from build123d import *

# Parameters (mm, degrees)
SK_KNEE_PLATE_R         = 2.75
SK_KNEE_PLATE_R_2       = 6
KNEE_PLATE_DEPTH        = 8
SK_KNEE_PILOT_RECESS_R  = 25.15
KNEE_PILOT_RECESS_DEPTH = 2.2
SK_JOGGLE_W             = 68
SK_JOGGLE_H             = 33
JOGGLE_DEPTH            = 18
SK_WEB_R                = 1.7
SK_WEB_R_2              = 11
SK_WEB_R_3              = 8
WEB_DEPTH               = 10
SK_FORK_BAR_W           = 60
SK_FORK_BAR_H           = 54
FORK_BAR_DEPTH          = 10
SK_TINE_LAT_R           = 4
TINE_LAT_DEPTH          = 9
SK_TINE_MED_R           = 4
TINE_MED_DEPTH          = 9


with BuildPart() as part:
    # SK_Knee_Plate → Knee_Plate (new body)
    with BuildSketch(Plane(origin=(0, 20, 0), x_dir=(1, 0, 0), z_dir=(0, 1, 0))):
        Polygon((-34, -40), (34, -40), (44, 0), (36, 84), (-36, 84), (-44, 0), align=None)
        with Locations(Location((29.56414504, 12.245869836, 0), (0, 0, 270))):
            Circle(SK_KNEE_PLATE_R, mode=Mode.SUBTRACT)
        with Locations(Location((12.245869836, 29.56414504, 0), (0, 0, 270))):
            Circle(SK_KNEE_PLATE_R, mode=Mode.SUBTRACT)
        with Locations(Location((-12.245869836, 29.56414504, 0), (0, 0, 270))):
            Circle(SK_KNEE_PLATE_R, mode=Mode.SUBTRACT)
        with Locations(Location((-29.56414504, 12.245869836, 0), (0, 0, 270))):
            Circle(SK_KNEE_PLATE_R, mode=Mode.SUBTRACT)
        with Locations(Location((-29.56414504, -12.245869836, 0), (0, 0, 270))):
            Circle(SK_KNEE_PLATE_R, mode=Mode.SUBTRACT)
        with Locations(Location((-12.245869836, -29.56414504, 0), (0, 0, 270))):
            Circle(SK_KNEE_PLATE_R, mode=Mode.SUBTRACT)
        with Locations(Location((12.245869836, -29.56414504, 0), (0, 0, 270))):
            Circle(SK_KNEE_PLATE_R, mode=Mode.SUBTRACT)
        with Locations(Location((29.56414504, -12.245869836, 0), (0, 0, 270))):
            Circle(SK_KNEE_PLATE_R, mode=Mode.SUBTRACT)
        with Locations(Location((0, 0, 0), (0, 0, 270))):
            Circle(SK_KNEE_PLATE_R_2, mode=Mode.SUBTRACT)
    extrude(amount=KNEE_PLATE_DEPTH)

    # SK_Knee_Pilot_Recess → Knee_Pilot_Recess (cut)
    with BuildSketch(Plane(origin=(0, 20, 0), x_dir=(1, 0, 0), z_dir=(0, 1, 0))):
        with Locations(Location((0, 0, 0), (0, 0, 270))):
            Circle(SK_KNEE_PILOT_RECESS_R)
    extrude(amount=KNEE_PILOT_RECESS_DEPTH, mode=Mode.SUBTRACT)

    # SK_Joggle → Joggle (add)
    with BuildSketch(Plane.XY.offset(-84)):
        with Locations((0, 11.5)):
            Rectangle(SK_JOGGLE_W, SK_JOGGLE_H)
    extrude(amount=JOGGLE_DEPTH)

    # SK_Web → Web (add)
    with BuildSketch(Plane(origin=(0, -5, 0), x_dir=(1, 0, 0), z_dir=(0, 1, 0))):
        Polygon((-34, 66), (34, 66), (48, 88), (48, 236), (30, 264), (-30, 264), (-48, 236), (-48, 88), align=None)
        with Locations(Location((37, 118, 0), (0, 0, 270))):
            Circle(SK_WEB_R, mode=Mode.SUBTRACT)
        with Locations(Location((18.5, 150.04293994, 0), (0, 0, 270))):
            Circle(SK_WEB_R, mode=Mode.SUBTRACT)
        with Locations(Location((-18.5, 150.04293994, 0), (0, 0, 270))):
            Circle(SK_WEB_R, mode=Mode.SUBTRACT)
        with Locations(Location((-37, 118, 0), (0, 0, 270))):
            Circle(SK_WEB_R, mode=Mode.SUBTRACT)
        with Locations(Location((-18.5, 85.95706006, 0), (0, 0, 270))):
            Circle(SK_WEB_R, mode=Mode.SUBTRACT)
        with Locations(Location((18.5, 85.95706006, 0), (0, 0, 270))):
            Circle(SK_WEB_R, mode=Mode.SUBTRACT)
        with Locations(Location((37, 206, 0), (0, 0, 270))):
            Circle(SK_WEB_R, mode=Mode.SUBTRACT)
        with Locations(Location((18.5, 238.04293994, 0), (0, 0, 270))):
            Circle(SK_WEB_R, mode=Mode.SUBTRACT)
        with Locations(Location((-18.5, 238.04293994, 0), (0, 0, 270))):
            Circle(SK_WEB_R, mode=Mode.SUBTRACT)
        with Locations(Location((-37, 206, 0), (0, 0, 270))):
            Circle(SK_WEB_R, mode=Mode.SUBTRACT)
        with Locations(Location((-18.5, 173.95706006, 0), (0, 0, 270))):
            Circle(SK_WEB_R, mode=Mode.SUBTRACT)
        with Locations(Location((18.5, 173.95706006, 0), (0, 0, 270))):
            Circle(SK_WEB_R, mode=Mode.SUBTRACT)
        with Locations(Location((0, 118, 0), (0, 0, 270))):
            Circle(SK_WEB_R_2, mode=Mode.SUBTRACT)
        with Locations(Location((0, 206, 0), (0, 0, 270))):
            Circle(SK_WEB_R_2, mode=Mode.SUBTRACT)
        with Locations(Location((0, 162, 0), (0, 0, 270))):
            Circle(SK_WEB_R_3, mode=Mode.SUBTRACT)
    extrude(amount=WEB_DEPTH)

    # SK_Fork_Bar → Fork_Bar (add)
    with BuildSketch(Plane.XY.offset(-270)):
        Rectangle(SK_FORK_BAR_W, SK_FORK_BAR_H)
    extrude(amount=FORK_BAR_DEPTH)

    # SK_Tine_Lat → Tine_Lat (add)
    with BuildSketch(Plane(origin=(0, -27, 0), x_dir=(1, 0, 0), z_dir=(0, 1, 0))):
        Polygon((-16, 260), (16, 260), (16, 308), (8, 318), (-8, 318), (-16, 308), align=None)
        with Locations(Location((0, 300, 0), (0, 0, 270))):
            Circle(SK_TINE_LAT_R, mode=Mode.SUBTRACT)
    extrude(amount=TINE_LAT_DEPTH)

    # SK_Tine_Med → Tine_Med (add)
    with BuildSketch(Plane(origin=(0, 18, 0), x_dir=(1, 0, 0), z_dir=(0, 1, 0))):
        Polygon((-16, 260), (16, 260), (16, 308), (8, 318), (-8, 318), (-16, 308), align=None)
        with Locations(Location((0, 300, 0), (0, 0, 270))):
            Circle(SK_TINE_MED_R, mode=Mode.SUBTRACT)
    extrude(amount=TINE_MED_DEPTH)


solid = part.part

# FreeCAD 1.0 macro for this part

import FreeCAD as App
import Part
import Sketcher

doc = App.newDocument("Part")
body = doc.addObject("PartDesign::Body", "Body")

# Sketch on XZ plane
sketch1 = body.newObject("Sketcher::SketchObject", "Sketch")
sketch1.AttachmentSupport = (doc.getObject("XZ_Plane"), [""])
sketch1.MapMode = "FlatFace"
sketch1.AttachmentOffset = App.Placement(App.Vector(0, 0, -20), App.Rotation())
sketch1.addGeometry([
    Part.LineSegment(App.Vector(-34, 40, 0), App.Vector(34, 40, 0)),  # 0
    Part.LineSegment(App.Vector(34, 40, 0), App.Vector(44, 0, 0)),  # 1
    Part.LineSegment(App.Vector(44, 0, 0), App.Vector(36, -84, 0)),  # 2
    Part.LineSegment(App.Vector(36, -84, 0), App.Vector(-36, -84, 0)),  # 3
    Part.LineSegment(App.Vector(-36, -84, 0), App.Vector(-44, 0, 0)),  # 4
    Part.LineSegment(App.Vector(-44, 0, 0), App.Vector(-34, 40, 0)),  # 5
    Part.Circle(App.Vector(-12.24587, 29.564145, 0), App.Vector(0, 0, 1), 2.75),  # 6
    Part.Circle(App.Vector(-29.564145, 12.24587, 0), App.Vector(0, 0, 1), 2.75),  # 7
    Part.Circle(App.Vector(12.24587, 29.564145, 0), App.Vector(0, 0, 1), 2.75),  # 8
    Part.Circle(App.Vector(29.564145, 12.24587, 0), App.Vector(0, 0, 1), 2.75),  # 9
    Part.Circle(App.Vector(-29.564145, -12.24587, 0), App.Vector(0, 0, 1), 2.75),  # 10
    Part.Circle(App.Vector(-12.24587, -29.564145, 0), App.Vector(0, 0, 1), 2.75),  # 11
    Part.Circle(App.Vector(0, 0, 0), App.Vector(0, 0, 1), 6),  # 12
    Part.Circle(App.Vector(29.564145, -12.24587, 0), App.Vector(0, 0, 1), 2.75),  # 13
    Part.Circle(App.Vector(12.24587, -29.564145, 0), App.Vector(0, 0, 1), 2.75),  # 14
], False)
sketch1.addConstraint([
    Sketcher.Constraint("Coincident", 0, 2, 1, 1),
    Sketcher.Constraint("Coincident", 1, 2, 2, 1),
    Sketcher.Constraint("Coincident", 2, 2, 3, 1),
    Sketcher.Constraint("Coincident", 3, 2, 4, 1),
    Sketcher.Constraint("Coincident", 4, 2, 5, 1),
    Sketcher.Constraint("Coincident", 5, 2, 0, 1),
    Sketcher.Constraint("Horizontal", 0),
    Sketcher.Constraint("Horizontal", 3),
    Sketcher.Constraint("Coincident", 12, 3, -1, 1),
    Sketcher.Constraint("Equal", 6, 7),
    Sketcher.Constraint("Equal", 7, 8),
    Sketcher.Constraint("Equal", 8, 9),
    Sketcher.Constraint("Equal", 9, 10),
    Sketcher.Constraint("Equal", 10, 11),
    Sketcher.Constraint("Equal", 11, 13),
    Sketcher.Constraint("Equal", 13, 14),
    Sketcher.Constraint("Symmetric", 9, 3, 10, 3, -1, 1),
    Sketcher.Constraint("Symmetric", 8, 3, 11, 3, -1, 1),
    Sketcher.Constraint("Symmetric", 7, 3, 13, 3, -1, 1),
    Sketcher.Constraint("Symmetric", 6, 3, 14, 3, -1, 1),
    Sketcher.Constraint("Symmetric", 1, 2, 4, 2, -1, 1),
    Sketcher.Constraint("Symmetric", 6, 3, 8, 3, -2),
    Sketcher.Constraint("Symmetric", 7, 3, 9, 3, -2),
    Sketcher.Constraint("PointOnObject", 1, 2, -1),
    Sketcher.Constraint("Equal", 2, 4),
    Sketcher.Constraint("Equal", 1, 5),
    Sketcher.Constraint("Diameter", 12, 12.0),
    Sketcher.Constraint("Diameter", 6, 5.5),
    Sketcher.Constraint("DistanceX", 0, 1, 0, 2, 68.0),
    Sketcher.Constraint("DistanceX", 3, 2, 3, 1, 72.0),
    Sketcher.Constraint("DistanceY", -1, 1, 0, 2, 40.0),
    Sketcher.Constraint("DistanceX", -1, 1, 1, 2, 44.0),
    Sketcher.Constraint("DistanceY", 2, 2, -1, 1, 84.0),
    Sketcher.Constraint("DistanceX", 6, 3, -1, 1, 12.24587),
    Sketcher.Constraint("DistanceY", -1, 1, 7, 3, 12.24587),
    Sketcher.Constraint("DistanceX", 7, 3, 9, 3, 59.12829),
    Sketcher.Constraint("DistanceY", 11, 3, 6, 3, 59.12829),
])
pad1 = body.newObject("PartDesign::Pad", "Pad")
pad1.Profile = sketch1
pad1.Length = 8
pad1.Reversed = True

# Sketch on XZ plane
sketch2 = body.newObject("Sketcher::SketchObject", "Sketch001")
sketch2.AttachmentSupport = (doc.getObject("XZ_Plane"), [""])
sketch2.MapMode = "FlatFace"
sketch2.AttachmentOffset = App.Placement(App.Vector(0, 0, -20), App.Rotation())
sketch2.addGeometry(Part.Circle(App.Vector(0, 0, 0), App.Vector(0, 0, 1), 25.15), False)
sketch2.addConstraint([
    Sketcher.Constraint("Coincident", 0, 3, -1, 1),
    Sketcher.Constraint("Diameter", 0, 50.3),
])
pocket1 = body.newObject("PartDesign::Pocket", "Pocket")
pocket1.Profile = sketch2
pocket1.Length = 2.2

# Sketch on XY plane
sketch3 = body.newObject("Sketcher::SketchObject", "Sketch002")
sketch3.AttachmentSupport = (doc.getObject("XY_Plane"), [""])
sketch3.MapMode = "FlatFace"
sketch3.AttachmentOffset = App.Placement(App.Vector(0, 0, -84), App.Rotation())
sketch3.addGeometry([
    Part.LineSegment(App.Vector(-34, 28, 0), App.Vector(-34, -5, 0)),
    Part.LineSegment(App.Vector(-34, -5, 0), App.Vector(34, -5, 0)),
    Part.LineSegment(App.Vector(34, -5, 0), App.Vector(34, 28, 0)),
    Part.LineSegment(App.Vector(34, 28, 0), App.Vector(-34, 28, 0)),
], False)
sketch3.addConstraint([
    Sketcher.Constraint("Coincident", 0, 2, 1, 1),
    Sketcher.Constraint("Coincident", 1, 2, 2, 1),
    Sketcher.Constraint("Coincident", 2, 2, 3, 1),
    Sketcher.Constraint("Coincident", 3, 2, 0, 1),
    Sketcher.Constraint("Vertical", 0),
    Sketcher.Constraint("Horizontal", 1),
    Sketcher.Constraint("Vertical", 2),
    Sketcher.Constraint("Horizontal", 3),
    Sketcher.Constraint("DistanceX", 1, 1, 1, 2, 68.0),
    Sketcher.Constraint("DistanceY", 0, 2, 0, 1, 33.0),
    Sketcher.Constraint("DistanceX", 0, 2, -1, 1, 34.0),
    Sketcher.Constraint("DistanceY", 0, 2, -1, 1, 5.0),
])
pad2 = body.newObject("PartDesign::Pad", "Pad001")
pad2.Profile = sketch3
pad2.Length = 18

# Sketch on XZ plane
sketch4 = body.newObject("Sketcher::SketchObject", "Sketch003")
sketch4.AttachmentSupport = (doc.getObject("XZ_Plane"), [""])
sketch4.MapMode = "FlatFace"
sketch4.AttachmentOffset = App.Placement(App.Vector(0, 0, 5), App.Rotation())
sketch4.addGeometry([
    Part.LineSegment(App.Vector(-34, -66, 0), App.Vector(34, -66, 0)),  # 0
    Part.LineSegment(App.Vector(34, -66, 0), App.Vector(48, -88, 0)),  # 1
    Part.LineSegment(App.Vector(48, -88, 0), App.Vector(48, -236, 0)),  # 2
    Part.LineSegment(App.Vector(48, -236, 0), App.Vector(30, -264, 0)),  # 3
    Part.LineSegment(App.Vector(30, -264, 0), App.Vector(-30, -264, 0)),  # 4
    Part.LineSegment(App.Vector(-30, -264, 0), App.Vector(-48, -236, 0)),  # 5
    Part.LineSegment(App.Vector(-48, -236, 0), App.Vector(-48, -88, 0)),  # 6
    Part.LineSegment(App.Vector(-48, -88, 0), App.Vector(-34, -66, 0)),  # 7
    Part.Circle(App.Vector(-37, -118, 0), App.Vector(0, 0, 1), 1.7),  # 8
    Part.Circle(App.Vector(-18.5, -85.95706, 0), App.Vector(0, 0, 1), 1.7),  # 9
    Part.Circle(App.Vector(-18.5, -150.04294, 0), App.Vector(0, 0, 1), 1.7),  # 10
    Part.Circle(App.Vector(18.5, -85.95706, 0), App.Vector(0, 0, 1), 1.7),  # 11
    Part.Circle(App.Vector(0, -118, 0), App.Vector(0, 0, 1), 11),  # 12
    Part.Circle(App.Vector(37, -118, 0), App.Vector(0, 0, 1), 1.7),  # 13
    Part.Circle(App.Vector(18.5, -150.04294, 0), App.Vector(0, 0, 1), 1.7),  # 14
    Part.Circle(App.Vector(-18.5, -173.95706, 0), App.Vector(0, 0, 1), 1.7),  # 15
    Part.Circle(App.Vector(-37, -206, 0), App.Vector(0, 0, 1), 1.7),  # 16
    Part.Circle(App.Vector(-18.5, -238.04294, 0), App.Vector(0, 0, 1), 1.7),  # 17
    Part.Circle(App.Vector(0, -162, 0), App.Vector(0, 0, 1), 8),  # 18
    Part.Circle(App.Vector(18.5, -173.95706, 0), App.Vector(0, 0, 1), 1.7),  # 19
    Part.Circle(App.Vector(0, -206, 0), App.Vector(0, 0, 1), 11),  # 20
    Part.Circle(App.Vector(18.5, -238.04294, 0), App.Vector(0, 0, 1), 1.7),  # 21
    Part.Circle(App.Vector(37, -206, 0), App.Vector(0, 0, 1), 1.7),  # 22
], False)
sketch4.addConstraint([
    Sketcher.Constraint("Coincident", 0, 2, 1, 1),
    Sketcher.Constraint("Coincident", 1, 2, 2, 1),
    Sketcher.Constraint("Coincident", 2, 2, 3, 1),
    Sketcher.Constraint("Coincident", 3, 2, 4, 1),
    Sketcher.Constraint("Coincident", 4, 2, 5, 1),
    Sketcher.Constraint("Coincident", 5, 2, 6, 1),
    Sketcher.Constraint("Coincident", 6, 2, 7, 1),
    Sketcher.Constraint("Coincident", 7, 2, 0, 1),
    Sketcher.Constraint("Horizontal", 0),
    Sketcher.Constraint("Vertical", 2),
    Sketcher.Constraint("Horizontal", 4),
    Sketcher.Constraint("Vertical", 6),
    Sketcher.Constraint("Equal", 8, 9),
    Sketcher.Constraint("Equal", 9, 10),
    Sketcher.Constraint("Equal", 10, 11),
    Sketcher.Constraint("Equal", 11, 13),
    Sketcher.Constraint("Equal", 13, 14),
    Sketcher.Constraint("Equal", 14, 15),
    Sketcher.Constraint("Equal", 15, 16),
    Sketcher.Constraint("Equal", 16, 17),
    Sketcher.Constraint("Equal", 17, 19),
    Sketcher.Constraint("Equal", 12, 20),
    Sketcher.Constraint("Equal", 19, 21),
    Sketcher.Constraint("Equal", 21, 22),
    Sketcher.Constraint("Symmetric", 9, 3, 11, 3, -2),
    Sketcher.Constraint("Symmetric", 8, 3, 13, 3, -2),
    Sketcher.Constraint("Symmetric", 10, 3, 14, 3, -2),
    Sketcher.Constraint("Symmetric", 15, 3, 19, 3, -2),
    Sketcher.Constraint("Symmetric", 17, 3, 21, 3, -2),
    Sketcher.Constraint("Symmetric", 16, 3, 22, 3, -2),
    Sketcher.Constraint("Symmetric", 2, 2, 5, 2, -2),
    Sketcher.Constraint("PointOnObject", 12, 3, -2),
    Sketcher.Constraint("PointOnObject", 18, 3, -2),
    Sketcher.Constraint("PointOnObject", 20, 3, -2),
    Sketcher.Constraint("Horizontal", 8, 3, 12, 3),
    Sketcher.Constraint("Horizontal", 16, 3, 20, 3),
    Sketcher.Constraint("Horizontal", 1, 2, 6, 2),
    Sketcher.Constraint("Vertical", 9, 3, 10, 3),
    Sketcher.Constraint("Vertical", 10, 3, 15, 3),
    Sketcher.Constraint("Vertical", 8, 3, 16, 3),
    Sketcher.Constraint("Vertical", 15, 3, 17, 3),
    Sketcher.Constraint("Equal", 3, 5),
    Sketcher.Constraint("Equal", 1, 7),
    Sketcher.Constraint("Diameter", 12, 22.0),
    Sketcher.Constraint("Diameter", 18, 16.0),
    Sketcher.Constraint("Diameter", 8, 3.4),
    Sketcher.Constraint("DistanceX", 0, 1, 0, 2, 68.0),
    Sketcher.Constraint("DistanceX", 4, 2, 4, 1, 60.0),
    Sketcher.Constraint("DistanceY", 2, 2, 2, 1, 148.0),
    Sketcher.Constraint("DistanceX", 8, 3, -1, 1, 37.0),
    Sketcher.Constraint("DistanceY", 8, 3, -1, 1, 118.0),
    Sketcher.Constraint("DistanceY", 16, 3, -1, 1, 206.0),
    Sketcher.Constraint("DistanceY", 18, 3, -1, 1, 162.0),
    Sketcher.Constraint("DistanceY", 0, 2, -1, 1, 66.0),
    Sketcher.Constraint("DistanceX", -1, 1, 1, 2, 48.0),
    Sketcher.Constraint("DistanceY", 1, 2, -1, 1, 88.0),
    Sketcher.Constraint("DistanceY", 3, 2, -1, 1, 264.0),
    Sketcher.Constraint("DistanceX", 9, 3, 11, 3, 37.0),
    Sketcher.Constraint("DistanceY", 17, 3, 10, 3, 88.0),
    Sketcher.Constraint("DistanceY", 9, 3, -1, 1, 85.95706),
    Sketcher.Constraint("DistanceY", 10, 3, -1, 1, 150.04294),
    Sketcher.Constraint("DistanceY", 15, 3, -1, 1, 173.95706),
])
pad3 = body.newObject("PartDesign::Pad", "Pad002")
pad3.Profile = sketch4
pad3.Length = 10
pad3.Reversed = True

# Sketch on XY plane
sketch5 = body.newObject("Sketcher::SketchObject", "Sketch004")
sketch5.AttachmentSupport = (doc.getObject("XY_Plane"), [""])
sketch5.MapMode = "FlatFace"
sketch5.AttachmentOffset = App.Placement(App.Vector(0, 0, -270), App.Rotation())
sketch5.addGeometry([
    Part.LineSegment(App.Vector(-30, 27, 0), App.Vector(-30, -27, 0)),
    Part.LineSegment(App.Vector(-30, -27, 0), App.Vector(30, -27, 0)),
    Part.LineSegment(App.Vector(30, -27, 0), App.Vector(30, 27, 0)),
    Part.LineSegment(App.Vector(30, 27, 0), App.Vector(-30, 27, 0)),
], False)
sketch5.addConstraint([
    Sketcher.Constraint("Coincident", 0, 2, 1, 1),
    Sketcher.Constraint("Coincident", 1, 2, 2, 1),
    Sketcher.Constraint("Coincident", 2, 2, 3, 1),
    Sketcher.Constraint("Coincident", 3, 2, 0, 1),
    Sketcher.Constraint("Vertical", 0),
    Sketcher.Constraint("Horizontal", 1),
    Sketcher.Constraint("Vertical", 2),
    Sketcher.Constraint("Horizontal", 3),
    Sketcher.Constraint("Symmetric", 0, 2, 2, 2, -1, 1),
    Sketcher.Constraint("DistanceX", 1, 1, 1, 2, 60.0),
    Sketcher.Constraint("DistanceY", 0, 2, 0, 1, 54.0),
])
pad4 = body.newObject("PartDesign::Pad", "Pad003")
pad4.Profile = sketch5
pad4.Length = 10

# Sketch on XZ plane
sketch6 = body.newObject("Sketcher::SketchObject", "Sketch005")
sketch6.AttachmentSupport = (doc.getObject("XZ_Plane"), [""])
sketch6.MapMode = "FlatFace"
sketch6.AttachmentOffset = App.Placement(App.Vector(0, 0, 27), App.Rotation())
sketch6.addGeometry([
    Part.LineSegment(App.Vector(-16, -260, 0), App.Vector(16, -260, 0)),  # 0
    Part.LineSegment(App.Vector(16, -260, 0), App.Vector(16, -308, 0)),  # 1
    Part.LineSegment(App.Vector(16, -308, 0), App.Vector(8, -318, 0)),  # 2
    Part.LineSegment(App.Vector(8, -318, 0), App.Vector(-8, -318, 0)),  # 3
    Part.LineSegment(App.Vector(-8, -318, 0), App.Vector(-16, -308, 0)),  # 4
    Part.LineSegment(App.Vector(-16, -308, 0), App.Vector(-16, -260, 0)),  # 5
    Part.Circle(App.Vector(0, -300, 0), App.Vector(0, 0, 1), 4),  # 6
], False)
sketch6.addConstraint([
    Sketcher.Constraint("Coincident", 0, 2, 1, 1),
    Sketcher.Constraint("Coincident", 1, 2, 2, 1),
    Sketcher.Constraint("Coincident", 2, 2, 3, 1),
    Sketcher.Constraint("Coincident", 3, 2, 4, 1),
    Sketcher.Constraint("Coincident", 4, 2, 5, 1),
    Sketcher.Constraint("Coincident", 5, 2, 0, 1),
    Sketcher.Constraint("Horizontal", 0),
    Sketcher.Constraint("Vertical", 1),
    Sketcher.Constraint("Horizontal", 3),
    Sketcher.Constraint("Vertical", 5),
    Sketcher.Constraint("Symmetric", 1, 2, 4, 2, -2),
    Sketcher.Constraint("PointOnObject", 6, 3, -2),
    Sketcher.Constraint("Equal", 2, 4),
    Sketcher.Constraint("Diameter", 6, 8.0),
    Sketcher.Constraint("DistanceX", 0, 1, 0, 2, 32.0),
    Sketcher.Constraint("DistanceX", 3, 2, 3, 1, 16.0),
    Sketcher.Constraint("DistanceY", 1, 2, 1, 1, 48.0),
    Sketcher.Constraint("DistanceY", 6, 3, -1, 1, 300.0),
    Sketcher.Constraint("DistanceY", 0, 2, -1, 1, 260.0),
    Sketcher.Constraint("DistanceY", 2, 2, -1, 1, 318.0),
])
pad5 = body.newObject("PartDesign::Pad", "Pad004")
pad5.Profile = sketch6
pad5.Length = 9
pad5.Reversed = True

# Sketch on XZ plane
sketch7 = body.newObject("Sketcher::SketchObject", "Sketch006")
sketch7.AttachmentSupport = (doc.getObject("XZ_Plane"), [""])
sketch7.MapMode = "FlatFace"
sketch7.AttachmentOffset = App.Placement(App.Vector(0, 0, -18), App.Rotation())
sketch7.addGeometry([
    Part.LineSegment(App.Vector(-16, -260, 0), App.Vector(16, -260, 0)),  # 0
    Part.LineSegment(App.Vector(16, -260, 0), App.Vector(16, -308, 0)),  # 1
    Part.LineSegment(App.Vector(16, -308, 0), App.Vector(8, -318, 0)),  # 2
    Part.LineSegment(App.Vector(8, -318, 0), App.Vector(-8, -318, 0)),  # 3
    Part.LineSegment(App.Vector(-8, -318, 0), App.Vector(-16, -308, 0)),  # 4
    Part.LineSegment(App.Vector(-16, -308, 0), App.Vector(-16, -260, 0)),  # 5
    Part.Circle(App.Vector(0, -300, 0), App.Vector(0, 0, 1), 4),  # 6
], False)
sketch7.addConstraint([
    Sketcher.Constraint("Coincident", 0, 2, 1, 1),
    Sketcher.Constraint("Coincident", 1, 2, 2, 1),
    Sketcher.Constraint("Coincident", 2, 2, 3, 1),
    Sketcher.Constraint("Coincident", 3, 2, 4, 1),
    Sketcher.Constraint("Coincident", 4, 2, 5, 1),
    Sketcher.Constraint("Coincident", 5, 2, 0, 1),
    Sketcher.Constraint("Horizontal", 0),
    Sketcher.Constraint("Vertical", 1),
    Sketcher.Constraint("Horizontal", 3),
    Sketcher.Constraint("Vertical", 5),
    Sketcher.Constraint("Symmetric", 1, 2, 4, 2, -2),
    Sketcher.Constraint("PointOnObject", 6, 3, -2),
    Sketcher.Constraint("Equal", 2, 4),
    Sketcher.Constraint("Diameter", 6, 8.0),
    Sketcher.Constraint("DistanceX", 0, 1, 0, 2, 32.0),
    Sketcher.Constraint("DistanceX", 3, 2, 3, 1, 16.0),
    Sketcher.Constraint("DistanceY", 1, 2, 1, 1, 48.0),
    Sketcher.Constraint("DistanceY", 6, 3, -1, 1, 300.0),
    Sketcher.Constraint("DistanceY", 0, 2, -1, 1, 260.0),
    Sketcher.Constraint("DistanceY", 2, 2, -1, 1, 318.0),
])
pad6 = body.newObject("PartDesign::Pad", "Pad005")
pad6.Profile = sketch7
pad6.Length = 9
pad6.Reversed = True

doc.recompute()
